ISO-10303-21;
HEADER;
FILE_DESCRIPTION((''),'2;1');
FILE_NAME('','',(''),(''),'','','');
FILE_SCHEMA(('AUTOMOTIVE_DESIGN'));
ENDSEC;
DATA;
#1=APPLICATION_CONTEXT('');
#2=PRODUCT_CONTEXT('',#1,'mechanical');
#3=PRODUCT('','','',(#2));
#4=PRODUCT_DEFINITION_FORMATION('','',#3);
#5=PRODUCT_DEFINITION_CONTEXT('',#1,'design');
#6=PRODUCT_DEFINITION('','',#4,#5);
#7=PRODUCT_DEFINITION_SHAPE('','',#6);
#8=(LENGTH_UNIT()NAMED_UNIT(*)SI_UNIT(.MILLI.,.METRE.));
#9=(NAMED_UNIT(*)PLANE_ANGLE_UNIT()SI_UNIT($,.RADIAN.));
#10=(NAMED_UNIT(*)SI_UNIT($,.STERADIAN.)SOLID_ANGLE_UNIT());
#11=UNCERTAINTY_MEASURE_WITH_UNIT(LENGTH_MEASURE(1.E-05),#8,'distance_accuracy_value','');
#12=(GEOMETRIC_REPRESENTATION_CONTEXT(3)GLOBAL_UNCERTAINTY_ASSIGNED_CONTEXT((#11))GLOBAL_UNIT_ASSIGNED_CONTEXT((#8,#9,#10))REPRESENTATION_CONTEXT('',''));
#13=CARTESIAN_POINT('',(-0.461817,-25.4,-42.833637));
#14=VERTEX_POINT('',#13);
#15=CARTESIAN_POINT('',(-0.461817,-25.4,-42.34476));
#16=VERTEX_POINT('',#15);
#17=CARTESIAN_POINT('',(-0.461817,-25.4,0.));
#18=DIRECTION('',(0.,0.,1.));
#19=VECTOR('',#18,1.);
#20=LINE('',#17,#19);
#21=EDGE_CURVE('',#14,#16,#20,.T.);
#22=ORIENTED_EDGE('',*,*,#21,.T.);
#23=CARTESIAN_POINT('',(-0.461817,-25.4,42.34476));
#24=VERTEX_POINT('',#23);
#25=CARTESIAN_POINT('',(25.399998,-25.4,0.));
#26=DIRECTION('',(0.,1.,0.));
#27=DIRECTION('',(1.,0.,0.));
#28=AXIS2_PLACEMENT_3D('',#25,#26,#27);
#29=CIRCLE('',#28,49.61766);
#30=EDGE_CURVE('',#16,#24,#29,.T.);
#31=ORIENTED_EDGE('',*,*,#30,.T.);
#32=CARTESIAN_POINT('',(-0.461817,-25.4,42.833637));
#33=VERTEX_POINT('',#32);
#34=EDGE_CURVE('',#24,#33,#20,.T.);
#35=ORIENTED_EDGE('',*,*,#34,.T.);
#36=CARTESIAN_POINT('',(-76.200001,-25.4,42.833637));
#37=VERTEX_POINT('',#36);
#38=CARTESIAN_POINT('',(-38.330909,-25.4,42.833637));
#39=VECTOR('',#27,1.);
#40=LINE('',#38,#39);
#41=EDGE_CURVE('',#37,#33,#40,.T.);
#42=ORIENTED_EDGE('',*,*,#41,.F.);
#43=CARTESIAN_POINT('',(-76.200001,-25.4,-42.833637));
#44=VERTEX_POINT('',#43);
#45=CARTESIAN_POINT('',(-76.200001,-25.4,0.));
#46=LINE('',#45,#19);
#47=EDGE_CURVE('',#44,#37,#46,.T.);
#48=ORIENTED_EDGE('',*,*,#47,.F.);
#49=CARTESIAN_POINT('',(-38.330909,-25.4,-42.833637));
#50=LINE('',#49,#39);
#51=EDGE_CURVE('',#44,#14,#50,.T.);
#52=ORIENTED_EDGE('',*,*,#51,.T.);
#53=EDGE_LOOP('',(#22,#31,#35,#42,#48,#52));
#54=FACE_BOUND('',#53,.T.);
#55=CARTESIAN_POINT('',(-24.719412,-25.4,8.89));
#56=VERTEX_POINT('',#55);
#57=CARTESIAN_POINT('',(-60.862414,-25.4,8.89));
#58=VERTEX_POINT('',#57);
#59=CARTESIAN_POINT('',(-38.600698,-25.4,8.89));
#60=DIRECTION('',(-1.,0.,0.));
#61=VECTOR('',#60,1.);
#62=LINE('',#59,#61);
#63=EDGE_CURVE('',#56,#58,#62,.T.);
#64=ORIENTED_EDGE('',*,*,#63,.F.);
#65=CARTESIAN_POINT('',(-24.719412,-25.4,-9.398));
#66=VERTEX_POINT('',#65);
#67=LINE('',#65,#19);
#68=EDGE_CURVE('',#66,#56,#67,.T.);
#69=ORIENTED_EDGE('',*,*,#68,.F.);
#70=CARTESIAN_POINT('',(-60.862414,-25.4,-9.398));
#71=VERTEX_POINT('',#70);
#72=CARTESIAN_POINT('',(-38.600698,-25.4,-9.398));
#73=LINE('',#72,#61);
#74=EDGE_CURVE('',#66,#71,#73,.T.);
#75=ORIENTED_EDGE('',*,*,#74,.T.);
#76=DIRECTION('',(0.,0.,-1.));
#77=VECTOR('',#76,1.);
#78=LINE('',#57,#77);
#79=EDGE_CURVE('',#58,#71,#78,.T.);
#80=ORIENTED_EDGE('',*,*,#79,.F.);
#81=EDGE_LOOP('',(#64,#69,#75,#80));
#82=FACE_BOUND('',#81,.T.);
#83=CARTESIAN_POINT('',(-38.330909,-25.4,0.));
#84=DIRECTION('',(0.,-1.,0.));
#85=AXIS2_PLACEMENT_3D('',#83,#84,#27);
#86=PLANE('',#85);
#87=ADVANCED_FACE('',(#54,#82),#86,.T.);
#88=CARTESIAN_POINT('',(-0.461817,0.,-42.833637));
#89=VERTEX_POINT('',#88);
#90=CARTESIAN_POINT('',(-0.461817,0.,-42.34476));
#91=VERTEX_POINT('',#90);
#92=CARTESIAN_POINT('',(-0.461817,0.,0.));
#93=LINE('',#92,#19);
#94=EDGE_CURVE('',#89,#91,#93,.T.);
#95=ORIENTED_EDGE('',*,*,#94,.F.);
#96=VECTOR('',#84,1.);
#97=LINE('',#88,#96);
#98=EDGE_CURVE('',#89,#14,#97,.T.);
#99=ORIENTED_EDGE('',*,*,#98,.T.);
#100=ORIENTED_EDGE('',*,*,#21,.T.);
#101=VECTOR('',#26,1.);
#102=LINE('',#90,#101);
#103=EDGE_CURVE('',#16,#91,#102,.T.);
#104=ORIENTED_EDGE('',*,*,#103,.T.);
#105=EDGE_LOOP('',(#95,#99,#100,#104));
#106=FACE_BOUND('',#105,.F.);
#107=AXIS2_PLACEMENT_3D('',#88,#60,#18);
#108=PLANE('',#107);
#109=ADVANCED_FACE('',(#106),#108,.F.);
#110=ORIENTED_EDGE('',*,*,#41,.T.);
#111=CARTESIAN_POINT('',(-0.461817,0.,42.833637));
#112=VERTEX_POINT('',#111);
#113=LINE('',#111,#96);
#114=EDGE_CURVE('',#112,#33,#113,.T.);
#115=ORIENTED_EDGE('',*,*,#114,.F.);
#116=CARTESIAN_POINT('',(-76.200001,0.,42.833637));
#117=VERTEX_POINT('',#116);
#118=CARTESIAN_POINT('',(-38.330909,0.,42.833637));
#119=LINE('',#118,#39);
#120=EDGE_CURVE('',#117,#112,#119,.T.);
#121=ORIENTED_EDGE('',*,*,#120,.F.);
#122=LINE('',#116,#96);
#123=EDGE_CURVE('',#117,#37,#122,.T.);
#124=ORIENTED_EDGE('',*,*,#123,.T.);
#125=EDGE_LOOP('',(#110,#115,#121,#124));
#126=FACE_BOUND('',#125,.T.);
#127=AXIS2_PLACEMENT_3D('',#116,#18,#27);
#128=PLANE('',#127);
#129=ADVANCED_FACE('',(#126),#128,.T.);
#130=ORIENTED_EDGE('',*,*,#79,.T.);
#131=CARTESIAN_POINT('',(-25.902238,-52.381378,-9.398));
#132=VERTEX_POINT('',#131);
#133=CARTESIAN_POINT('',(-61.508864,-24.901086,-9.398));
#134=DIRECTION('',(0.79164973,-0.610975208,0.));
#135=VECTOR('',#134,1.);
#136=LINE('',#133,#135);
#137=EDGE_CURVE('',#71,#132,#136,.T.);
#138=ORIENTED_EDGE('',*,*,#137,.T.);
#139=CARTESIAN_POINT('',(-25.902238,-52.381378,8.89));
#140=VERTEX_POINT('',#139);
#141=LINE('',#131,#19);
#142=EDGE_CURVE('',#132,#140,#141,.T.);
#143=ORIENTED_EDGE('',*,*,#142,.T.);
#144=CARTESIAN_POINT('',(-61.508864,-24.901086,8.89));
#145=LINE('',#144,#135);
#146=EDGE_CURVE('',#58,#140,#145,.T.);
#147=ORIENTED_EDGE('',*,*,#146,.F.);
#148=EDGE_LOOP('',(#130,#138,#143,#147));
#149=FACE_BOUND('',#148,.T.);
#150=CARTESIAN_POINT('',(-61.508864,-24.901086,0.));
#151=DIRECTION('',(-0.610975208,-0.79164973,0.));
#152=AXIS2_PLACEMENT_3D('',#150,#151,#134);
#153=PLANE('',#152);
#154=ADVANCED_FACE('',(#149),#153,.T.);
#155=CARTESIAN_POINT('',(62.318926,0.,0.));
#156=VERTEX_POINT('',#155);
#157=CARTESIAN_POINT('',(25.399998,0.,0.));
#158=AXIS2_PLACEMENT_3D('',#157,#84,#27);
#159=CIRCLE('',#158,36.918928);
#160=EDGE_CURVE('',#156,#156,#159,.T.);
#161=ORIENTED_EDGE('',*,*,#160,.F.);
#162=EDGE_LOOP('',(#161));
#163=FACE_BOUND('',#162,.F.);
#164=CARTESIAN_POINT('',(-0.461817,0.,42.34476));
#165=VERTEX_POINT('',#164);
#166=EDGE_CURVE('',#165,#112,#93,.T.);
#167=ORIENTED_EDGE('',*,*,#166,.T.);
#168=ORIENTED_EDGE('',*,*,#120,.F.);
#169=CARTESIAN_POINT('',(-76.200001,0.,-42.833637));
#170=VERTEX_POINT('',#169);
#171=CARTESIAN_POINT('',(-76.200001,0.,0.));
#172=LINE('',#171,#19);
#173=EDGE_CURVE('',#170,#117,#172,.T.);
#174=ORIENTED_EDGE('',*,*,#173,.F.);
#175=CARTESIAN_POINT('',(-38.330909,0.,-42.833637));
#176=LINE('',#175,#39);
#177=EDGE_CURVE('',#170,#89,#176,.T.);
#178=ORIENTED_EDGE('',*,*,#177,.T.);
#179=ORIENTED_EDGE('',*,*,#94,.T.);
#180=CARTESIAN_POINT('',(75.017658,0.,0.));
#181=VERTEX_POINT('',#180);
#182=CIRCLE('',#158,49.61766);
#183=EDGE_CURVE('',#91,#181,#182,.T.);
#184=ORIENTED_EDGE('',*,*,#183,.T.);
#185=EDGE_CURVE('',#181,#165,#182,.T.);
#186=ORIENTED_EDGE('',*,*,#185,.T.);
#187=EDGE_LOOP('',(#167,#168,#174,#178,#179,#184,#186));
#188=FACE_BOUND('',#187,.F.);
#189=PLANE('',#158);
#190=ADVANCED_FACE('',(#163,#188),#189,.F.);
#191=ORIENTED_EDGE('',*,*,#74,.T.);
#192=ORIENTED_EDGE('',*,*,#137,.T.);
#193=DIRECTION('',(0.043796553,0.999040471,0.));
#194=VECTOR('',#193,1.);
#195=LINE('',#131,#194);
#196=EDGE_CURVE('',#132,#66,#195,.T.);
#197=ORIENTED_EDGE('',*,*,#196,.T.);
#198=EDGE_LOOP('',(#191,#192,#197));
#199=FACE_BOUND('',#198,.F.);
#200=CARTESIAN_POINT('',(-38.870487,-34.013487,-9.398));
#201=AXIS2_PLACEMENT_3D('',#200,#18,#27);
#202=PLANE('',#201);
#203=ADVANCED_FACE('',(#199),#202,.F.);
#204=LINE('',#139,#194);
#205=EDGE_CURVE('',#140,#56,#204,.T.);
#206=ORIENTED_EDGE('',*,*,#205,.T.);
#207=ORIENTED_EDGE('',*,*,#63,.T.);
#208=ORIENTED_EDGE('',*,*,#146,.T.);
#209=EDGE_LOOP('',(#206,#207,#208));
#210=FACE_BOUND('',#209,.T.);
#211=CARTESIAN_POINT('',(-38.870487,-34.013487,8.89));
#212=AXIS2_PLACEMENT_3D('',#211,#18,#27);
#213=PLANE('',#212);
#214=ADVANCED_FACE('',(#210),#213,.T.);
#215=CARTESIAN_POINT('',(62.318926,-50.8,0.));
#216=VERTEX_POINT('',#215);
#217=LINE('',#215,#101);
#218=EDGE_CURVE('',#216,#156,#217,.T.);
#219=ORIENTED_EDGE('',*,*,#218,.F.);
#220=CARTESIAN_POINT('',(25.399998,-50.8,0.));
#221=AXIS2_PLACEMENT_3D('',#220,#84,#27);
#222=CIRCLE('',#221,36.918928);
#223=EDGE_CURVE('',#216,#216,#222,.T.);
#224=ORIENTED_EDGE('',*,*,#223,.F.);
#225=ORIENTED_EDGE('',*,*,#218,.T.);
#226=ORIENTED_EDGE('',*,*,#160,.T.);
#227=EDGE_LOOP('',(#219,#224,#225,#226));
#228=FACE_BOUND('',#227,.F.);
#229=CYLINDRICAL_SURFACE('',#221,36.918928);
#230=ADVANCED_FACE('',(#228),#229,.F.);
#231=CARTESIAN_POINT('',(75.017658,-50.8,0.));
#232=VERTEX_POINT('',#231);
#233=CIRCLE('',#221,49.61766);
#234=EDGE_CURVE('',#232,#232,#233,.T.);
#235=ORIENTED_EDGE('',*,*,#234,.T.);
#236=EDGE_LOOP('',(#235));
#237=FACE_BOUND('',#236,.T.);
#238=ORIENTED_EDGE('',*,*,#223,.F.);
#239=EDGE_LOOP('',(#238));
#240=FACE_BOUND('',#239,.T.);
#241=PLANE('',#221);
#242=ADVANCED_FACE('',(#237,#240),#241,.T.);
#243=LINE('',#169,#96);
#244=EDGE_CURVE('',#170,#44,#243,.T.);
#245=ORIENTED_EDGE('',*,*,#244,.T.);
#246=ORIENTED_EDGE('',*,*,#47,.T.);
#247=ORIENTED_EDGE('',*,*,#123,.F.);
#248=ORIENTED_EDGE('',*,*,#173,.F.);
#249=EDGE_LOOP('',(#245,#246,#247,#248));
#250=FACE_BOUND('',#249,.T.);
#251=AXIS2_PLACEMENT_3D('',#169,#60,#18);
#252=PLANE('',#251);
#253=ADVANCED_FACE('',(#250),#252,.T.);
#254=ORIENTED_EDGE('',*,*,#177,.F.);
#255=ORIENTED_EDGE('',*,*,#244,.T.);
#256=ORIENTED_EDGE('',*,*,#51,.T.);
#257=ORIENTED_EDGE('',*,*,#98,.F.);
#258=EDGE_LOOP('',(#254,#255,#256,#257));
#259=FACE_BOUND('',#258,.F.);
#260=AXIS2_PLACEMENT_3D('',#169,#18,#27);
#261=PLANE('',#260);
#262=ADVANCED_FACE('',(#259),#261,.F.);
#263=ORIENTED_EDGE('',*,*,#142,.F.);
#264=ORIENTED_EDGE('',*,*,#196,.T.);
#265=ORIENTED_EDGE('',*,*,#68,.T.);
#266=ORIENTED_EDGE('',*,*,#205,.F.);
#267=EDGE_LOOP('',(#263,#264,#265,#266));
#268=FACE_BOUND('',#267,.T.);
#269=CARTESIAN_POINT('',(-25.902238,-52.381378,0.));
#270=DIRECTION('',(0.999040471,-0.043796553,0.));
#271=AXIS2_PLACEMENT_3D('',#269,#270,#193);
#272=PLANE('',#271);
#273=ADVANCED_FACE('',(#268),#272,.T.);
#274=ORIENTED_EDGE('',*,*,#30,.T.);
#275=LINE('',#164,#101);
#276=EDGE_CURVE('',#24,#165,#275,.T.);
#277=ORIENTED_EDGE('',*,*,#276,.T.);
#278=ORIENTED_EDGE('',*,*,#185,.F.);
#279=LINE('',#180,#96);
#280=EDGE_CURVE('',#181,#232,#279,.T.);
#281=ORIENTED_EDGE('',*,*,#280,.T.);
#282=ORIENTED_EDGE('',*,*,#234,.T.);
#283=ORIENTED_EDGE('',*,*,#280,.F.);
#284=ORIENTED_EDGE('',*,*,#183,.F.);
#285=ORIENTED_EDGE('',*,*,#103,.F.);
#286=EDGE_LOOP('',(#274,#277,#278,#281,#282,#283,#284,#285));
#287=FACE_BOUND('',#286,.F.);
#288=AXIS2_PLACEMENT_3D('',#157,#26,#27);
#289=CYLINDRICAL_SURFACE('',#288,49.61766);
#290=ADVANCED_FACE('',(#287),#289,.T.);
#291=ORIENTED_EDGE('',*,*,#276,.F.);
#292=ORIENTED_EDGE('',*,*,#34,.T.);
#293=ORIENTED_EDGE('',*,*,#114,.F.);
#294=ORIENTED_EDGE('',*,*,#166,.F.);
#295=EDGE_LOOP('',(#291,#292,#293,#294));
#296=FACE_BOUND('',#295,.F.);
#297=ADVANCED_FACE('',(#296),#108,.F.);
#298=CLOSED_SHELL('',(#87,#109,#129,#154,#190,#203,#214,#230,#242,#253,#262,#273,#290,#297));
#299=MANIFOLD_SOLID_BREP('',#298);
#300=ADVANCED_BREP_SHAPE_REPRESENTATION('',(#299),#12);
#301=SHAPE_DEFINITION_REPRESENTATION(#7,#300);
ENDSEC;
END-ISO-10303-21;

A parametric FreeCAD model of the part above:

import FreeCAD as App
import Part
import Sketcher

V = App.Vector
Q = App.Units.Quantity

doc = App.newDocument("Part")
body = doc.addObject("PartDesign::Body", "Body")

# Sketch on XZ plane
sketch1 = body.newObject("Sketcher::SketchObject", "Sketch")
sketch1.AttachmentSupport = (doc.getObject("XZ_Plane"), [""])
sketch1.MapMode = "FlatFace"
sketch1.addGeometry([
    Part.LineSegment(V(-76, 43, 0), V(-76, -43, 0)),
    Part.LineSegment(V(-76, -43, 0), V(0, -43, 0)),
    Part.LineSegment(V(0, -43, 0), V(0, 43, 0)),
    Part.LineSegment(V(0, 43, 0), V(-76, 43, 0)),
], False)
sketch1.addConstraint([
    Sketcher.Constraint("Coincident", 0, 2, 1, 1),
    Sketcher.Constraint("Coincident", 1, 2, 2, 1),
    Sketcher.Constraint("Coincident", 2, 2, 3, 1),
    Sketcher.Constraint("Coincident", 3, 2, 0, 1),
    Sketcher.Constraint("Vertical", 0),
    Sketcher.Constraint("Horizontal", 1),
    Sketcher.Constraint("Vertical", 2),
    Sketcher.Constraint("Horizontal", 3),
    Sketcher.Constraint("DistanceX", 0, 2, -1, 1, Q("3 in")),
    Sketcher.Constraint("DistanceX", 1, 1, 1, 2, Q("75.738184 mm")),
    Sketcher.Constraint("DistanceY", 0, 2, 0, 1, Q("85.667274 mm")),
    Sketcher.Constraint("DistanceY", 0, 2, -1, 1, Q("42.833637 mm")),
])
pad1 = body.newObject("PartDesign::Pad", "Pad")
pad1.Profile = sketch1
pad1.Length = Q("1 in")

# Sketch on XZ plane
sketch2 = body.newObject("Sketcher::SketchObject", "Sketch001")
sketch2.AttachmentSupport = (doc.getObject("XZ_Plane"), [""])
sketch2.MapMode = "FlatFace"
sketch2.addGeometry(Part.Circle(V(25, 0, 0), V(0, 0, 1), 50), False)
sketch2.addConstraint([
    Sketcher.Constraint("PointOnObject", 0, 3, -1),
    Sketcher.Constraint("DistanceX", -1, 1, 0, 3, Q("0.9999999 in")),
    Sketcher.Constraint("Diameter", 0, Q("99.23532 mm")),
])
pad2 = body.newObject("PartDesign::Pad", "Pad001")
pad2.Profile = sketch2
pad2.Length = Q("2 in")

# Sketch on XZ plane
sketch3 = body.newObject("Sketcher::SketchObject", "Sketch002")
sketch3.AttachmentSupport = (doc.getObject("XZ_Plane"), [""])
sketch3.MapMode = "FlatFace"
sketch3.AttachmentOffset = App.Placement(V(0, 0, 2 * 25.4), App.Rotation())
sketch3.addGeometry(Part.Circle(V(25, 0, 0), V(0, 0, 1), 37), False)
sketch3.addConstraint([
    Sketcher.Constraint("PointOnObject", 0, 3, -1),
    Sketcher.Constraint("DistanceX", -1, 1, 0, 3, Q("0.9999999 in")),
    Sketcher.Constraint("Diameter", 0, Q("73.837856 mm")),
])
pocket1 = body.newObject("PartDesign::Pocket", "Pocket")
pocket1.Profile = sketch3
pocket1.Type = "ThroughAll"

# Sketch on XY plane
sketch4 = body.newObject("Sketcher::SketchObject", "Sketch003")
sketch4.AttachmentSupport = (doc.getObject("XY_Plane"), [""])
sketch4.MapMode = "FlatFace"
sketch4.addGeometry([
    Part.LineSegment(V(-62, -25, 0), V(-26, -52, 0)),
    Part.LineSegment(V(-26, -52, 0), V(-25, -25, 0)),
    Part.LineSegment(V(-25, -25, 0), V(-62, -25, 0)),
], False)
sketch4.addConstraint([
    Sketcher.Constraint("Coincident", 0, 2, 1, 1),
    Sketcher.Constraint("Coincident", 1, 2, 2, 1),
    Sketcher.Constraint("Coincident", 2, 2, 0, 1),
    Sketcher.Constraint("Horizontal", 2),
    Sketcher.Constraint("DistanceX", 0, 2, 1, 2, Q("1.204698 mm")),
    Sketcher.Constraint("DistanceX", 2, 2, 2, 1, Q("36.811324 mm")),
    Sketcher.Constraint("DistanceX", 0, 2, -1, 1, Q("25.902238 mm")),
    Sketcher.Constraint("DistanceY", 0, 2, 1, 2, Q("27.480292 mm")),
    Sketcher.Constraint("DistanceY", 0, 2, -1, 1, Q("52.381378 mm")),
])
pad3 = body.newObject("PartDesign::Pad", "Pad002")
pad3.Profile = sketch4
pad3.Type = "TwoLengths"
pad3.Length = Q("0.35 in")
pad3.Length2 = Q("0.37 in")

doc.recompute()
